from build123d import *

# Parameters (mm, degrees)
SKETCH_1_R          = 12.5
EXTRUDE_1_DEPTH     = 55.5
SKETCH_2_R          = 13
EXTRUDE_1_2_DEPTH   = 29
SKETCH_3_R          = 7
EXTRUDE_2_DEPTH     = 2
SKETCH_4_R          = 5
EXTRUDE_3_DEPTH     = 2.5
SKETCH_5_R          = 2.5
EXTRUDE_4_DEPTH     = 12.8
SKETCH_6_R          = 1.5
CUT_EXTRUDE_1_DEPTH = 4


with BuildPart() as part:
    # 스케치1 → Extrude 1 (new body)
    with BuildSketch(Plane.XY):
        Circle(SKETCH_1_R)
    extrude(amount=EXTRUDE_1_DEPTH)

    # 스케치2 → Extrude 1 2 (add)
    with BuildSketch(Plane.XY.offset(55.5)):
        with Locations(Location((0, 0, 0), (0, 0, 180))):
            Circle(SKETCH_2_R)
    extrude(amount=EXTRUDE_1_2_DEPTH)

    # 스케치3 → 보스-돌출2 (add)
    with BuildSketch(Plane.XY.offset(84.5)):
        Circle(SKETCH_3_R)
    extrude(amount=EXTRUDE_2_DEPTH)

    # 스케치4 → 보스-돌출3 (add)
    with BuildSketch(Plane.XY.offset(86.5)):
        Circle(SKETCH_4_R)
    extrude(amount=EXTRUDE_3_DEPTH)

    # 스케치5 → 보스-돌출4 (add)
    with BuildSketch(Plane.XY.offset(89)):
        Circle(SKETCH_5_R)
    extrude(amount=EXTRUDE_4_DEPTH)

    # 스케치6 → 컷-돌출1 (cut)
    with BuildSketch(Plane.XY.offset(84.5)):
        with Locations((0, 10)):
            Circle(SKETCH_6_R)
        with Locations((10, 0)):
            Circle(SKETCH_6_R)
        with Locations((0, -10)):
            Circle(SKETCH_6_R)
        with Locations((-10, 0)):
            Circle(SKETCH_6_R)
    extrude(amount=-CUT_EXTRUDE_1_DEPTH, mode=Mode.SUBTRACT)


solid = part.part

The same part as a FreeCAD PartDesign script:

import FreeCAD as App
import Part
import Sketcher
Q = App.Units.Quantity

doc = App.newDocument("Part")
params = doc.addObject("Spreadsheet::Sheet", "Params")
for row, (alias, value) in enumerate([
    ("sketch1_diameter", "25 mm"),
    ("pad1_length", "55.5 mm"),
    ("sketch2_diameter", "26 mm"),
    ("pad2_length", "29 mm"),
    ("sketch3_diameter", "14 mm"),
    ("pad3_length", "2 mm"),
    ("sketch4_diameter", "10 mm"),
    ("pad4_length", "2.5 mm"),
    ("sketch5_diameter", "5 mm"),
    ("pad5_length", "12.8 mm"),
    ("sketch6_diameter", "3 mm"),
    ("pocket1_length", "4 mm"),
], start=1):
    params.set(f"A{row}", alias)
    params.set(f"B{row}", "=" + value)
    params.setAlias(f"B{row}", alias)

body = doc.addObject("PartDesign::Body", "Body")

# Sketch on XY plane
sketch1 = body.newObject("Sketcher::SketchObject", "Sketch")
sketch1.AttachmentSupport = (doc.getObject("XY_Plane"), [""])
sketch1.MapMode = "FlatFace"
sketch1.addGeometry(Part.Circle(App.Vector(0, 0, 0), App.Vector(0, 0, 1), 12.5), False)
sketch1.addConstraint(Sketcher.Constraint("Coincident", 0, 3, -1, 1))
sketch1.addConstraint(Sketcher.Constraint("Diameter", 0, Q("25 mm")))
sketch1.setExpression("Constraints[1]", "Params.sketch1_diameter")
pad1 = body.newObject("PartDesign::Pad", "Pad")
pad1.Profile = sketch1
pad1.setExpression("Length", "Params.pad1_length")

# Sketch on XY plane
sketch2 = body.newObject("Sketcher::SketchObject", "Sketch001")
sketch2.AttachmentSupport = (doc.getObject("XY_Plane"), [""])
sketch2.MapMode = "FlatFace"
sketch2.AttachmentOffset = App.Placement(App.Vector(0, 0, 55.5), App.Rotation())
sketch2.addGeometry(Part.Circle(App.Vector(0, 0, 0), App.Vector(0, 0, 1), 13), False)
sketch2.addConstraint(Sketcher.Constraint("Coincident", 0, 3, -1, 1))
sketch2.addConstraint(Sketcher.Constraint("Diameter", 0, Q("26 mm")))
sketch2.setExpression("Constraints[1]", "Params.sketch2_diameter")
pad2 = body.newObject("PartDesign::Pad", "Pad001")
pad2.Profile = sketch2
pad2.setExpression("Length", "Params.pad2_length")

# Sketch on XY plane
sketch3 = body.newObject("Sketcher::SketchObject", "Sketch002")
sketch3.AttachmentSupport = (doc.getObject("XY_Plane"), [""])
sketch3.MapMode = "FlatFace"
sketch3.AttachmentOffset = App.Placement(App.Vector(0, 0, 84.5), App.Rotation())
sketch3.addGeometry(Part.Circle(App.Vector(0, 0, 0), App.Vector(0, 0, 1), 7), False)
sketch3.addConstraint(Sketcher.Constraint("Coincident", 0, 3, -1, 1))
sketch3.addConstraint(Sketcher.Constraint("Diameter", 0, Q("14 mm")))
sketch3.setExpression("Constraints[1]", "Params.sketch3_diameter")
pad3 = body.newObject("PartDesign::Pad", "Pad002")
pad3.Profile = sketch3
pad3.setExpression("Length", "Params.pad3_length")

# Sketch on XY plane
sketch4 = body.newObject("Sketcher::SketchObject", "Sketch003")
sketch4.AttachmentSupport = (doc.getObject("XY_Plane"), [""])
sketch4.MapMode = "FlatFace"
sketch4.AttachmentOffset = App.Placement(App.Vector(0, 0, 86.5), App.Rotation())
sketch4.addGeometry(Part.Circle(App.Vector(0, 0, 0), App.Vector(0, 0, 1), 5), False)
sketch4.addConstraint(Sketcher.Constraint("Coincident", 0, 3, -1, 1))
sketch4.addConstraint(Sketcher.Constraint("Diameter", 0, Q("10 mm")))
sketch4.setExpression("Constraints[1]", "Params.sketch4_diameter")
pad4 = body.newObject("PartDesign::Pad", "Pad003")
pad4.Profile = sketch4
pad4.setExpression("Length", "Params.pad4_length")

# Sketch on XY plane
sketch5 = body.newObject("Sketcher::SketchObject", "Sketch004")
sketch5.AttachmentSupport = (doc.getObject("XY_Plane"), [""])
sketch5.MapMode = "FlatFace"
sketch5.AttachmentOffset = App.Placement(App.Vector(0, 0, 89), App.Rotation())
sketch5.addGeometry(Part.Circle(App.Vector(0, 0, 0), App.Vector(0, 0, 1), 2.5), False)
sketch5.addConstraint(Sketcher.Constraint("Coincident", 0, 3, -1, 1))
sketch5.addConstraint(Sketcher.Constraint("Diameter", 0, Q("5 mm")))
sketch5.setExpression("Constraints[1]", "Params.sketch5_diameter")
pad5 = body.newObject("PartDesign::Pad", "Pad004")
pad5.Profile = sketch5
pad5.setExpression("Length", "Params.pad5_length")

# Sketch on XY plane
sketch6 = body.newObject("Sketcher::SketchObject", "Sketch005")
sketch6.AttachmentSupport = (doc.getObject("XY_Plane"), [""])
sketch6.MapMode = "FlatFace"
sketch6.AttachmentOffset = App.Placement(App.Vector(0, 0, 84.5), App.Rotation())
sketch6.addGeometry(Part.Circle(App.Vector(0, 10, 0), App.Vector(0, 0, 1), 1.5), False)
sketch6.addGeometry(Part.Circle(App.Vector(10, 0, 0), App.Vector(0, 0, 1), 1.5), False)
sketch6.addGeometry(Part.Circle(App.Vector(0, -10, 0), App.Vector(0, 0, 1), 1.5), False)
sketch6.addGeometry(Part.Circle(App.Vector(-10, 0, 0), App.Vector(0, 0, 1), 1.5), False)
sketch6.addConstraint(Sketcher.Constraint("Equal", 0, 1))
sketch6.addConstraint(Sketcher.Constraint("Equal", 1, 2))
sketch6.addConstraint(Sketcher.Constraint("Equal", 2, 3))
sketch6.addConstraint(Sketcher.Constraint("Symmetric", 0, 3, 2, 3, -1, 1))
sketch6.addConstraint(Sketcher.Constraint("Symmetric", 1, 3, 3, 3, -1, 1))
sketch6.addConstraint(Sketcher.Constraint("PointOnObject", 0, 3, -2))
sketch6.addConstraint(Sketcher.Constraint("PointOnObject", 1, 3, -1))
sketch6.addConstraint(Sketcher.Constraint("Diameter", 0, Q("3 mm")))
sketch6.addConstraint(Sketcher.Constraint("DistanceY", -1, 1, 0, 3, Q("10 mm")))
sketch6.addConstraint(Sketcher.Constraint("DistanceX", -1, 1, 1, 3, Q("10 mm")))
sketch6.setExpression("Constraints[7]", "Params.sketch6_diameter")
pocket1 = body.newObject("PartDesign::Pocket", "Pocket")
pocket1.Profile = sketch6
pocket1.setExpression("Length", "Params.pocket1_length")

doc.recompute()
